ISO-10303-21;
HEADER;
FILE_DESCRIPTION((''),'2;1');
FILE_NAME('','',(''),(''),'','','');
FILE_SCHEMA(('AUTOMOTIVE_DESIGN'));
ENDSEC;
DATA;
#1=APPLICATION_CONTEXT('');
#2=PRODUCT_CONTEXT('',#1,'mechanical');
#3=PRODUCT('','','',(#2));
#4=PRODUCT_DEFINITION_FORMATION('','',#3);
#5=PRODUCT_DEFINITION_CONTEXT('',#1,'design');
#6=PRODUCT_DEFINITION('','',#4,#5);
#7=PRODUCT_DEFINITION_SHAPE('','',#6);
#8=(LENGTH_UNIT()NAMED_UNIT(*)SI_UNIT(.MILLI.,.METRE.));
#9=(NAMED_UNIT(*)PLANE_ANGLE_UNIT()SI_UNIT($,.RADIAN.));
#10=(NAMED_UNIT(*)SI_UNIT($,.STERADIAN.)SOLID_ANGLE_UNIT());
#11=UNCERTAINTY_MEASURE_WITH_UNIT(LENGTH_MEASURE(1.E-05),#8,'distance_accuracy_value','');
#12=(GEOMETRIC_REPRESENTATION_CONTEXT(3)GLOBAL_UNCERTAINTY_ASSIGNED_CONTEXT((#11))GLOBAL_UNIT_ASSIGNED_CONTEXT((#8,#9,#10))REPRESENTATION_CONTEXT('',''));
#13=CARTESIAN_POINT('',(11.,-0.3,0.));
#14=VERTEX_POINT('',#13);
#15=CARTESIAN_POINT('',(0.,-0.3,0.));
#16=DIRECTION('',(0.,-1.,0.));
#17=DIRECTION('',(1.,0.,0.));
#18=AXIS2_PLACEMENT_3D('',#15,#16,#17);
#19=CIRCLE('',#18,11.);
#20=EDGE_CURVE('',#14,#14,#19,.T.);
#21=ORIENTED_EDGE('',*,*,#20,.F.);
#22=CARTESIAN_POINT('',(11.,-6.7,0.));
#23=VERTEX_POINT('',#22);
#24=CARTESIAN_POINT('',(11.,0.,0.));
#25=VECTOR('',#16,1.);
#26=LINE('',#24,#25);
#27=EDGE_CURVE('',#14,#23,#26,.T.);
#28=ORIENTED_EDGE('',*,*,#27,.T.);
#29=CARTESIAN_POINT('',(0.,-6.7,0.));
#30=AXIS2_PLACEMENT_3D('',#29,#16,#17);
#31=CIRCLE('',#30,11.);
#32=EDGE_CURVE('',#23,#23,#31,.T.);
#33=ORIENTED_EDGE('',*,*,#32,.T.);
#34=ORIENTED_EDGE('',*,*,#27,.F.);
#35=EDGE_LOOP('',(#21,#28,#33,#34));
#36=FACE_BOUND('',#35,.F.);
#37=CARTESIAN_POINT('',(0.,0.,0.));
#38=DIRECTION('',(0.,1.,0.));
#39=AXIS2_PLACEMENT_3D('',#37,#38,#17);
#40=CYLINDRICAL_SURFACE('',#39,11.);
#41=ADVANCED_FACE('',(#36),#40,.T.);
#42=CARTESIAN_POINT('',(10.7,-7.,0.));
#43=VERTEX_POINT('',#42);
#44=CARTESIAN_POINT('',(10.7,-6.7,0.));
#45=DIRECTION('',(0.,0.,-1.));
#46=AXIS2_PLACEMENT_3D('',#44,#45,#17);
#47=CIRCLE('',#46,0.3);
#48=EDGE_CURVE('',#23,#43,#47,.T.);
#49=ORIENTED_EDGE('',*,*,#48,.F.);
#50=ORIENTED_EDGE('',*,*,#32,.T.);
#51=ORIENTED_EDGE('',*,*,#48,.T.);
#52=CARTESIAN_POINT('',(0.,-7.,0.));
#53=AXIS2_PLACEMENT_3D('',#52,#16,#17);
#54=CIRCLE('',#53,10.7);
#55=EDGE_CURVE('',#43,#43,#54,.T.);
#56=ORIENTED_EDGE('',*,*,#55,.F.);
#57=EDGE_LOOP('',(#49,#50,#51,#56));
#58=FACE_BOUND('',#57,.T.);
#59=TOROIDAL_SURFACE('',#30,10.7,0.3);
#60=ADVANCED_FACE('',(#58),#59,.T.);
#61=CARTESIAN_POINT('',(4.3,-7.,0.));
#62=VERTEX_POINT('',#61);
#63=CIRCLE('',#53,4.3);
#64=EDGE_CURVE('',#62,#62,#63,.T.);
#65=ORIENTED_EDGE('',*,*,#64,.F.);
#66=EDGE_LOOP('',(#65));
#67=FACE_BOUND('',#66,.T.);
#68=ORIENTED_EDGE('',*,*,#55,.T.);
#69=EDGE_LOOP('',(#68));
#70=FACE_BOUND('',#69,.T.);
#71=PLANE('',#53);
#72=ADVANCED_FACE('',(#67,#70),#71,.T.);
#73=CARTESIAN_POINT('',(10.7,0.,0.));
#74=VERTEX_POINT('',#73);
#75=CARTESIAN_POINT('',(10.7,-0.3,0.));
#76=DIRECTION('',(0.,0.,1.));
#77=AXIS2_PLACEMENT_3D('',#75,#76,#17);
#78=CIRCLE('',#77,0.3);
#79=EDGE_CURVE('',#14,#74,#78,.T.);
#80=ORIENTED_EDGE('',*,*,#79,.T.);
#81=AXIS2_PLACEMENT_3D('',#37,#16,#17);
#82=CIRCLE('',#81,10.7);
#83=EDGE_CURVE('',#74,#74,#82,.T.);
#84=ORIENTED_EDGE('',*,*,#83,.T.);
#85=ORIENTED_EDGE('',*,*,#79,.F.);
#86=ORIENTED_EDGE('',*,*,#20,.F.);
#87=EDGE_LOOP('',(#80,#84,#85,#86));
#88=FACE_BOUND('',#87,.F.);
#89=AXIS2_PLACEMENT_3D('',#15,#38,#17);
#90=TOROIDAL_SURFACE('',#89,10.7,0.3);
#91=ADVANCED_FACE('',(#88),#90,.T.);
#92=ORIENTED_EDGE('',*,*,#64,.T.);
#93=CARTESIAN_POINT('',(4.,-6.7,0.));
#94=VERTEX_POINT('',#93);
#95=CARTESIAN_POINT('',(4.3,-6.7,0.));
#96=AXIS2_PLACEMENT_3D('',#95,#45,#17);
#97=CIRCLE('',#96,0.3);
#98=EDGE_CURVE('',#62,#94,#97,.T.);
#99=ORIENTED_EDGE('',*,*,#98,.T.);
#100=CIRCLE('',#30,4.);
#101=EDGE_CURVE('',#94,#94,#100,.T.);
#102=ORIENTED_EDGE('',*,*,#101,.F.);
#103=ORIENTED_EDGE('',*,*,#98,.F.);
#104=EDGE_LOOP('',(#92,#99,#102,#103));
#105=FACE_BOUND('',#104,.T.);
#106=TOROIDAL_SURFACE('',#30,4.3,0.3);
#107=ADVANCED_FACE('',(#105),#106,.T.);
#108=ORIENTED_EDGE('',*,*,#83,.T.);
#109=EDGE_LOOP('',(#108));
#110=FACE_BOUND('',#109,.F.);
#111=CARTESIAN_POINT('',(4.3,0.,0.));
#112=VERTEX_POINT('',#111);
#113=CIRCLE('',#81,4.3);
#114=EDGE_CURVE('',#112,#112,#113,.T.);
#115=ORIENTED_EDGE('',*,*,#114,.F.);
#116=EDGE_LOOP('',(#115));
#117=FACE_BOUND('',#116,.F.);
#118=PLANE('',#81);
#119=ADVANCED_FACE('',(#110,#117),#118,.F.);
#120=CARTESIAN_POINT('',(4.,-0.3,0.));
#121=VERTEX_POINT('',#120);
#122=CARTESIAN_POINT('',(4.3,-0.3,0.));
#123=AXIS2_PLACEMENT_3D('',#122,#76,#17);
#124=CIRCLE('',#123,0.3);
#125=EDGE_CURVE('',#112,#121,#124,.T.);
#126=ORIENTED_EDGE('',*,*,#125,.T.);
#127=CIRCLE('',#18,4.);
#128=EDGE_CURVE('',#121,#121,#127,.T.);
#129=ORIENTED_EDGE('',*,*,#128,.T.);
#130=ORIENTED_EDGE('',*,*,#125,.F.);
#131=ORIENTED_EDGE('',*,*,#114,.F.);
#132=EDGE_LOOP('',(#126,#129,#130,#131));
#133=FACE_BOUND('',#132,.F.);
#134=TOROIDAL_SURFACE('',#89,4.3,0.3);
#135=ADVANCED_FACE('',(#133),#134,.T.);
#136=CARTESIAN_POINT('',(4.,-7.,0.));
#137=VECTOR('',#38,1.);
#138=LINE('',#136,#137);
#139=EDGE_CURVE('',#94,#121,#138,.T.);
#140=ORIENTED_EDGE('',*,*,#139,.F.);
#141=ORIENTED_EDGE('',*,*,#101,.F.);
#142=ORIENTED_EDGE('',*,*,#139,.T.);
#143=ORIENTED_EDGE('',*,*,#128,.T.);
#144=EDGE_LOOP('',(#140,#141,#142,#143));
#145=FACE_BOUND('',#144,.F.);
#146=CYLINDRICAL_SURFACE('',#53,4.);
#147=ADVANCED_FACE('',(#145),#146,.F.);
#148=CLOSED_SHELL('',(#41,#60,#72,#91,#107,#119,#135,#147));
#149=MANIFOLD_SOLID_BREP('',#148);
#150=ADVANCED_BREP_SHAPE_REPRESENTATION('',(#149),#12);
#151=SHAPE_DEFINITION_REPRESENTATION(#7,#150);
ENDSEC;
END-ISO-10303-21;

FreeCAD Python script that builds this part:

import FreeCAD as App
import Part
import Sketcher
Q = App.Units.Quantity


def edges_at(feature, points):
    """Names of the edges that pass closest to the given points."""
    edges = feature.Shape.Edges
    near = lambda p: min(range(len(edges)), key=lambda i: edges[i].distToShape(Part.Vertex(*p))[0])
    return sorted({f"Edge{near(p) + 1}" for p in points})

doc = App.newDocument("Part")
body = doc.addObject("PartDesign::Body", "Body")

# Sketch on XZ plane
sketch1 = body.newObject("Sketcher::SketchObject", "Sketch")
sketch1.AttachmentSupport = (doc.getObject("XZ_Plane"), [""])
sketch1.MapMode = "FlatFace"
sketch1.addGeometry(Part.Circle(App.Vector(0, 0, 0), App.Vector(0, 0, 1), 11), False)
sketch1.addConstraint([
    Sketcher.Constraint("Coincident", 0, 3, -1, 1),
    Sketcher.Constraint("Diameter", 0, Q("22 mm")),
])
pad1 = body.newObject("PartDesign::Pad", "Pad")
pad1.Profile = sketch1
pad1.Length = 7

# Sketch on XZ plane
sketch2 = body.newObject("Sketcher::SketchObject", "Sketch001")
sketch2.AttachmentSupport = (doc.getObject("XZ_Plane"), [""])
sketch2.MapMode = "FlatFace"
sketch2.AttachmentOffset = App.Placement(App.Vector(0, 0, 7), App.Rotation())
sketch2.addGeometry(Part.Circle(App.Vector(0, 0, 0), App.Vector(0, 0, 1), 4), False)
sketch2.addConstraint([
    Sketcher.Constraint("Coincident", 0, 3, -1, 1),
    Sketcher.Constraint("Diameter", 0, Q("8 mm")),
])
pocket1 = body.newObject("PartDesign::Pocket", "Pocket")
pocket1.Profile = sketch2
pocket1.Length = 25
doc.recompute()

fillet = body.newObject("PartDesign::Fillet", "Fillet")
fillet.Base = (pocket1, edges_at(pocket1, [
    (-11, -7, 0),
    (-11, 0, 0),
    (-4, 0, 0),
    (-4, -7, 0),
]))
fillet.Radius = 0.3

doc.recompute()
